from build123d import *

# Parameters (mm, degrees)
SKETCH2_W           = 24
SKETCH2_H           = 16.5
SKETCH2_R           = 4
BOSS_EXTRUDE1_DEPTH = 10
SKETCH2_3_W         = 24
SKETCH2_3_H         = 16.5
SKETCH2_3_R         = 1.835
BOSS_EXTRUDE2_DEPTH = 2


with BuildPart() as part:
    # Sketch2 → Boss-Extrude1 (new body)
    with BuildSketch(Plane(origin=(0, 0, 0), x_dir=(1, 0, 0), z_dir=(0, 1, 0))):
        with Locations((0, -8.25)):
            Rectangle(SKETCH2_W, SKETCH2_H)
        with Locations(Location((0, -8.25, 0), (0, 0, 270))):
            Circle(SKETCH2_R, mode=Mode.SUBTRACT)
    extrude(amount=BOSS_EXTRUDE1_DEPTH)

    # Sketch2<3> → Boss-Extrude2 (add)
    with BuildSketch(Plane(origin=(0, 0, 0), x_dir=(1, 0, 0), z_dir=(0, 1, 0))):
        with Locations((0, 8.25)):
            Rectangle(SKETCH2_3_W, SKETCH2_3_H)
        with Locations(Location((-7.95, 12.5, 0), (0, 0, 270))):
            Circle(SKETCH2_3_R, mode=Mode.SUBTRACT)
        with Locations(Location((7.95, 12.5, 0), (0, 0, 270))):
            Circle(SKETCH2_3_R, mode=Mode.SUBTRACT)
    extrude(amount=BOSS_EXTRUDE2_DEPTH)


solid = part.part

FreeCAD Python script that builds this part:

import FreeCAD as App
import Part
import Sketcher

doc = App.newDocument("Part")
params = doc.addObject("Spreadsheet::Sheet", "Params")
for row, (alias, value) in enumerate([
    ("sketch1_diameter", "8 mm"),
    ("sketch1_width", "24 mm"),
    ("sketch1_height", "16.5 mm"),
    ("pad1_length", "10 mm"),
    ("sketch2_diameter", "3.67 mm"),
    ("sketch2_width", "24 mm"),
    ("sketch2_height", "16.5 mm"),
    ("pad2_length", "2 mm"),
], start=1):
    params.set(f"A{row}", alias)
    params.set(f"B{row}", "=" + value)
    params.setAlias(f"B{row}", alias)

body = doc.addObject("PartDesign::Body", "Body")

sketch1 = body.newObject("Sketcher::SketchObject", "Sketch")
sketch1.AttachmentSupport = (doc.getObject("XZ_Plane"), [""])
sketch1.MapMode = "FlatFace"
sketch1.addGeometry([
    Part.LineSegment(App.Vector(-12, 0, 0), App.Vector(-12, 16.5, 0)),
    Part.LineSegment(App.Vector(-12, 16.5, 0), App.Vector(12, 16.5, 0)),
    Part.LineSegment(App.Vector(12, 16.5, 0), App.Vector(12, 0, 0)),
    Part.LineSegment(App.Vector(12, 0, 0), App.Vector(-12, 0, 0)),
    Part.Circle(App.Vector(0, 8.2, 0), App.Vector(0, 0, 1), 4),
], False)
sketch1.addConstraint([
    Sketcher.Constraint("Coincident", 0, 2, 1, 1),
    Sketcher.Constraint("Coincident", 1, 2, 2, 1),
    Sketcher.Constraint("Coincident", 2, 2, 3, 1),
    Sketcher.Constraint("Coincident", 3, 2, 0, 1),
    Sketcher.Constraint("Vertical", 0),
    Sketcher.Constraint("Horizontal", 1),
    Sketcher.Constraint("Vertical", 2),
    Sketcher.Constraint("Horizontal", 3),
    Sketcher.Constraint("Symmetric", 2, 2, 3, 2, -1, 1),
    Sketcher.Constraint("PointOnObject", 4, 3, -2),
    Sketcher.Constraint("Diameter", 4, 8.0),
    Sketcher.Constraint("DistanceX", 1, 1, 1, 2, 24.0),
    Sketcher.Constraint("DistanceY", 0, 1, 0, 2, 16.5),
    Sketcher.Constraint("DistanceY", -1, 1, 4, 3, 8.25),
])
sketch1.setExpression("Constraints[10]", "Params.sketch1_diameter")
sketch1.setExpression("Constraints[11]", "Params.sketch1_width")
sketch1.setExpression("Constraints[12]", "Params.sketch1_height")
pad1 = body.newObject("PartDesign::Pad", "Pad")
pad1.Profile = sketch1
pad1.setExpression("Length", "Params.pad1_length")
pad1.Reversed = True

sketch2 = body.newObject("Sketcher::SketchObject", "Sketch001")
sketch2.AttachmentSupport = (doc.getObject("XZ_Plane"), [""])
sketch2.MapMode = "FlatFace"
sketch2.addGeometry([
    Part.LineSegment(App.Vector(-12, -16.5, 0), App.Vector(-12, 0, 0)),
    Part.LineSegment(App.Vector(-12, 0, 0), App.Vector(12, 0, 0)),
    Part.LineSegment(App.Vector(12, 0, 0), App.Vector(12, -16.5, 0)),
    Part.LineSegment(App.Vector(12, -16.5, 0), App.Vector(-12, -16.5, 0)),
    Part.Circle(App.Vector(-8, -12.5, 0), App.Vector(0, 0, 1), 1.8),
    Part.Circle(App.Vector(8, -12.5, 0), App.Vector(0, 0, 1), 1.8),
], False)
sketch2.addConstraint([
    Sketcher.Constraint("Coincident", 0, 2, 1, 1),
    Sketcher.Constraint("Coincident", 1, 2, 2, 1),
    Sketcher.Constraint("Coincident", 2, 2, 3, 1),
    Sketcher.Constraint("Coincident", 3, 2, 0, 1),
    Sketcher.Constraint("Vertical", 0),
    Sketcher.Constraint("Horizontal", 1),
    Sketcher.Constraint("Vertical", 2),
    Sketcher.Constraint("Horizontal", 3),
    Sketcher.Constraint("Equal", 4, 5),
    Sketcher.Constraint("Symmetric", 0, 2, 1, 2, -1, 1),
    Sketcher.Constraint("Symmetric", 4, 3, 5, 3, -2),
    Sketcher.Constraint("Diameter", 4, 3.67),
    Sketcher.Constraint("DistanceX", 1, 1, 1, 2, 24.0),
    Sketcher.Constraint("DistanceY", 0, 1, 0, 2, 16.5),
    Sketcher.Constraint("DistanceY", 2, 2, 5, 3, 4.0),
    Sketcher.Constraint("DistanceX", 4, 3, 5, 3, 15.9),
])
sketch2.setExpression("Constraints[11]", "Params.sketch2_diameter")
sketch2.setExpression("Constraints[12]", "Params.sketch2_width")
sketch2.setExpression("Constraints[13]", "Params.sketch2_height")
pad2 = body.newObject("PartDesign::Pad", "Pad001")
pad2.Profile = sketch2
pad2.setExpression("Length", "Params.pad2_length")
pad2.Reversed = True

doc.recompute()
